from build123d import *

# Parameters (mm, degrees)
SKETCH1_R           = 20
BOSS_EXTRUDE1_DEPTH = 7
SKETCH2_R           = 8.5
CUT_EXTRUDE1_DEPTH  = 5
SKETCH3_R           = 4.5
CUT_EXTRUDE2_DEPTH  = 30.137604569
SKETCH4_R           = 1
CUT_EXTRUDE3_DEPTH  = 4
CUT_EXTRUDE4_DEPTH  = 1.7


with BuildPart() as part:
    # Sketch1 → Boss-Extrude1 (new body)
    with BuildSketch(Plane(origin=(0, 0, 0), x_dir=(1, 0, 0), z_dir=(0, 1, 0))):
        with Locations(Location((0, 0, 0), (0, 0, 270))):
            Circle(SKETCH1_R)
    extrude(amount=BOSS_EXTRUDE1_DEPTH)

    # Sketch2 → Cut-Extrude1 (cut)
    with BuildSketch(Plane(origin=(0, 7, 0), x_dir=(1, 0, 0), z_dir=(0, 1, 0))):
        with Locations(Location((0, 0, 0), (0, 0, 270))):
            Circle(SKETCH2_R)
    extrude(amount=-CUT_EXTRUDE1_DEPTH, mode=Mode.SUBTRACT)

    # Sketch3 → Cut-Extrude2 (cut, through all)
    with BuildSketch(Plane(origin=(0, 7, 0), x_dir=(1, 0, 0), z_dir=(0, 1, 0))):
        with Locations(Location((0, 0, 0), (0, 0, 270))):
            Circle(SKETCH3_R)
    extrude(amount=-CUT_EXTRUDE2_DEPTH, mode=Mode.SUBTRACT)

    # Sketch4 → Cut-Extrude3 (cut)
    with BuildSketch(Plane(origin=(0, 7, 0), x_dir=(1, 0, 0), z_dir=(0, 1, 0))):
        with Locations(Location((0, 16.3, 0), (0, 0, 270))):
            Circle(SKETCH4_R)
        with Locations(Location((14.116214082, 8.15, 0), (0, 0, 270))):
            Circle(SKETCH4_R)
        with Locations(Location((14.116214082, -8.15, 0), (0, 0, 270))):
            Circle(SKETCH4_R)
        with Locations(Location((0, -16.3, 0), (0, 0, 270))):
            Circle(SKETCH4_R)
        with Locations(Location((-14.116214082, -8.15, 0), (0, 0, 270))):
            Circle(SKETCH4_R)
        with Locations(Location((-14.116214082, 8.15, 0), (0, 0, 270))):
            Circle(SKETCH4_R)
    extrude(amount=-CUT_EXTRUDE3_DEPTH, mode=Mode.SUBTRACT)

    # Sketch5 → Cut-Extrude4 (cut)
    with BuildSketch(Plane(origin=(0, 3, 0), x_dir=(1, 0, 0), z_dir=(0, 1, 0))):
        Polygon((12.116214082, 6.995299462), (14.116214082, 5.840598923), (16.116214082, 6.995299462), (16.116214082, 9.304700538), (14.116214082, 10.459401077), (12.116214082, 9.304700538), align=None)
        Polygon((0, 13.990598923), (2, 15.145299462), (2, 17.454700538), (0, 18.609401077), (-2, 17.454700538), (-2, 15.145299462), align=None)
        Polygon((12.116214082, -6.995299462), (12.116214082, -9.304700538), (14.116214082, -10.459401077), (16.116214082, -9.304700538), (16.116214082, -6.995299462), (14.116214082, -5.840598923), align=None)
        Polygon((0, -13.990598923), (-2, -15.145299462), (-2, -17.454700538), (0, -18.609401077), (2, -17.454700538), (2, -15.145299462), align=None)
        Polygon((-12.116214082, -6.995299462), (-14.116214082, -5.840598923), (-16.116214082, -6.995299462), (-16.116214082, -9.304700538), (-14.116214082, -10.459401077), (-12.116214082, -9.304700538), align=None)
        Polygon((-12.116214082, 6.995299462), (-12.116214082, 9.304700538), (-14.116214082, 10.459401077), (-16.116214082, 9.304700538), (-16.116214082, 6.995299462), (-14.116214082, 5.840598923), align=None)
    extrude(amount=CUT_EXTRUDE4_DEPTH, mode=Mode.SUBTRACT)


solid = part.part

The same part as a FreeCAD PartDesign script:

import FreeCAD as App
import Part
import Sketcher
Q = App.Units.Quantity


def add_polygon(sketch, points):
    """Adds a closed chain of lines whose ends are joined by coincident constraints."""
    first, n = sketch.GeometryCount, len(points)
    for a, b in zip(points, points[1:] + points[:1]):
        sketch.addGeometry(Part.LineSegment(App.Vector(*a, 0), App.Vector(*b, 0)), False)
    for i in range(n):
        sketch.addConstraint(Sketcher.Constraint("Coincident", first + i, 2, first + (i + 1) % n, 1))

doc = App.newDocument("Part")
body = doc.addObject("PartDesign::Body", "Body")

sketch1 = body.newObject("Sketcher::SketchObject", "Sketch")
sketch1.AttachmentSupport = (doc.getObject("XZ_Plane"), [""])
sketch1.MapMode = "FlatFace"
sketch1.addGeometry(Part.Circle(App.Vector(0, 0, 0), App.Vector(0, 0, 1), 20), False)
sketch1.addConstraint([
    Sketcher.Constraint("Coincident", 0, 3, -1, 1),
    Sketcher.Constraint("Diameter", 0, Q("40 mm")),
])
pad1 = body.newObject("PartDesign::Pad", "Pad")
pad1.Profile = sketch1
pad1.Length = 7
pad1.Reversed = True

sketch2 = body.newObject("Sketcher::SketchObject", "Sketch001")
sketch2.AttachmentSupport = (doc.getObject("XZ_Plane"), [""])
sketch2.MapMode = "FlatFace"
sketch2.AttachmentOffset = App.Placement(App.Vector(0, 0, -7), App.Rotation())
sketch2.addGeometry(Part.Circle(App.Vector(0, 0, 0), App.Vector(0, 0, 1), 8), False)
sketch2.addConstraint([
    Sketcher.Constraint("Coincident", 0, 3, -1, 1),
    Sketcher.Constraint("Diameter", 0, Q("17 mm")),
])
pocket1 = body.newObject("PartDesign::Pocket", "Pocket")
pocket1.Profile = sketch2
pocket1.Length = 5
pocket1.Reversed = True

sketch3 = body.newObject("Sketcher::SketchObject", "Sketch002")
sketch3.AttachmentSupport = (doc.getObject("XZ_Plane"), [""])
sketch3.MapMode = "FlatFace"
sketch3.AttachmentOffset = App.Placement(App.Vector(0, 0, -7), App.Rotation())
sketch3.addGeometry(Part.Circle(App.Vector(0, 0, 0), App.Vector(0, 0, 1), 4.5), False)
sketch3.addConstraint([
    Sketcher.Constraint("Coincident", 0, 3, -1, 1),
    Sketcher.Constraint("Diameter", 0, Q("9 mm")),
])
pocket2 = body.newObject("PartDesign::Pocket", "Pocket001")
pocket2.Profile = sketch3
pocket2.Type = "ThroughAll"
pocket2.Reversed = True

sketch4 = body.newObject("Sketcher::SketchObject", "Sketch003")
sketch4.AttachmentSupport = (doc.getObject("XZ_Plane"), [""])
sketch4.MapMode = "FlatFace"
sketch4.AttachmentOffset = App.Placement(App.Vector(0, 0, -7), App.Rotation())
sketch4.addGeometry([
    Part.Circle(App.Vector(0, -16.3, 0), App.Vector(0, 0, 1), 1),
    Part.Circle(App.Vector(14.1, -8.2, 0), App.Vector(0, 0, 1), 1),
    Part.Circle(App.Vector(14.1, 8.2, 0), App.Vector(0, 0, 1), 1),
    Part.Circle(App.Vector(0, 16.3, 0), App.Vector(0, 0, 1), 1),
    Part.Circle(App.Vector(-14.1, 8.2, 0), App.Vector(0, 0, 1), 1),
    Part.Circle(App.Vector(-14.1, -8.2, 0), App.Vector(0, 0, 1), 1),
], False)
sketch4.addConstraint([
    Sketcher.Constraint("Equal", 0, 1),
    Sketcher.Constraint("Equal", 1, 2),
    Sketcher.Constraint("Equal", 2, 3),
    Sketcher.Constraint("Equal", 3, 4),
    Sketcher.Constraint("Equal", 4, 5),
    Sketcher.Constraint("Symmetric", 0, 3, 3, 3, -1, 1),
    Sketcher.Constraint("Symmetric", 1, 3, 4, 3, -1, 1),
    Sketcher.Constraint("Symmetric", 2, 3, 5, 3, -1, 1),
    Sketcher.Constraint("Symmetric", 2, 3, 4, 3, -2),
    Sketcher.Constraint("PointOnObject", 0, 3, -2),
    Sketcher.Constraint("Diameter", 0, Q("2 mm")),
    Sketcher.Constraint("DistanceY", 0, 3, -1, 1, Q("16.3 mm")),
    Sketcher.Constraint("DistanceY", 1, 3, 2, 3, Q("16.3 mm")),
    Sketcher.Constraint("DistanceX", 4, 3, 2, 3, Q("28.232428 mm")),
])
pocket3 = body.newObject("PartDesign::Pocket", "Pocket002")
pocket3.Profile = sketch4
pocket3.Length = 4
pocket3.Reversed = True

sketch5 = body.newObject("Sketcher::SketchObject", "Sketch004")
sketch5.AttachmentSupport = (doc.getObject("XZ_Plane"), [""])
sketch5.MapMode = "FlatFace"
sketch5.AttachmentOffset = App.Placement(App.Vector(0, 0, -3), App.Rotation())
add_polygon(sketch5, [(12.1, -7), (14.1, -5.8), (16.1, -7), (16.1, -9.3), (14.1, -10.5), (12.1, -9.3)])
add_polygon(sketch5, [(0, -14), (2, -15.1), (2, -17.5), (0, -18.6), (-2, -17.5), (-2, -15.1)])
add_polygon(sketch5, [(12.1, 7), (12.1, 9.3), (14.1, 10.5), (16.1, 9.3), (16.1, 7), (14.1, 5.8)])
add_polygon(sketch5, [(0, 14), (-2, 15.1), (-2, 17.5), (0, 18.6), (2, 17.5), (2, 15.1)])
add_polygon(sketch5, [(-12.1, 7), (-14.1, 5.8), (-16.1, 7), (-16.1, 9.3), (-14.1, 10.5), (-12.1, 9.3)])
add_polygon(sketch5, [(-12.1, -7), (-12.1, -9.3), (-14.1, -10.5), (-16.1, -9.3), (-16.1, -7), (-14.1, -5.8)])
sketch5.addConstraint([
    Sketcher.Constraint("Vertical", 2),
    Sketcher.Constraint("Vertical", 5),
    Sketcher.Constraint("Vertical", 7),
    Sketcher.Constraint("Vertical", 10),
    Sketcher.Constraint("Vertical", 12),
    Sketcher.Constraint("Vertical", 15),
    Sketcher.Constraint("Vertical", 19),
    Sketcher.Constraint("Vertical", 22),
    Sketcher.Constraint("Vertical", 26),
    Sketcher.Constraint("Vertical", 29),
    Sketcher.Constraint("Vertical", 30),
    Sketcher.Constraint("Vertical", 33),
    Sketcher.Constraint("Symmetric", 6, 2, 18, 2, -1, 1),
    Sketcher.Constraint("Symmetric", 8, 2, 20, 2, -1, 1),
    Sketcher.Constraint("Symmetric", 9, 2, 21, 2, -1, 1),
    Sketcher.Constraint("Symmetric", 11, 2, 23, 2, -1, 1),
    Sketcher.Constraint("Symmetric", 0, 2, 24, 2, -1, 1),
    Sketcher.Constraint("Symmetric", 1, 2, 25, 2, -1, 1),
    Sketcher.Constraint("Symmetric", 3, 2, 27, 2, -1, 1),
    Sketcher.Constraint("Symmetric", 4, 2, 28, 2, -1, 1),
    Sketcher.Constraint("Symmetric", 12, 2, 30, 2, -1, 1),
    Sketcher.Constraint("Symmetric", 13, 2, 31, 2, -1, 1),
    Sketcher.Constraint("Symmetric", 14, 2, 32, 2, -1, 1),
    Sketcher.Constraint("Symmetric", 16, 2, 34, 2, -1, 1),
    Sketcher.Constraint("Symmetric", 7, 2, 9, 2, -2),
    Sketcher.Constraint("Symmetric", 16, 2, 24, 2, -2),
    Sketcher.Constraint("Symmetric", 15, 2, 25, 2, -2),
    Sketcher.Constraint("Symmetric", 13, 2, 27, 2, -2),
    Sketcher.Constraint("Symmetric", 12, 2, 28, 2, -2),
    Sketcher.Constraint("PointOnObject", 8, 2, -2),
    Sketcher.Constraint("PointOnObject", 11, 2, -2),
    Sketcher.Constraint("Parallel", 0, 3),
    Sketcher.Constraint("Parallel", 1, 4),
    Sketcher.Constraint("Parallel", 4, 6),
    Sketcher.Constraint("Parallel", 3, 8),
    Sketcher.Constraint("Parallel", 6, 9),
    Sketcher.Constraint("Parallel", 8, 11),
    Sketcher.Constraint("Parallel", 9, 14),
    Sketcher.Constraint("Parallel", 14, 17),
    Sketcher.Constraint("Parallel", 16, 20),
    Sketcher.Constraint("Parallel", 20, 23),
    Sketcher.Constraint("Parallel", 23, 24),
    Sketcher.Constraint("Parallel", 24, 27),
    Sketcher.Constraint("Parallel", 31, 34),
    Sketcher.Constraint("Parallel", 32, 35),
    Sketcher.Constraint("Horizontal", 2, 2, 4, 2),
    Sketcher.Constraint("Horizontal", 1, 2, 5, 2),
    Sketcher.Constraint("Equal", 5, 7),
    Sketcher.Constraint("Equal", 4, 6),
    Sketcher.Constraint("Angle", 0, Q("30 deg")),
    Sketcher.Constraint("DistanceX", -1, 1, 6, 2, Q("2 mm")),
    Sketcher.Constraint("DistanceY", 5, 2, 12, 2, Q("16.3 mm")),
    Sketcher.Constraint("DistanceY", 6, 2, 5, 2, Q("8.15 mm")),
    Sketcher.Constraint("DistanceY", 2, 2, 2, 1, Q("2.309401 mm")),
    Sketcher.Constraint("DistanceX", -1, 1, 0, 2, Q("14.116214 mm")),
])
pocket4 = body.newObject("PartDesign::Pocket", "Pocket003")
pocket4.Profile = sketch5
pocket4.Length = 1.7

doc.recompute()
